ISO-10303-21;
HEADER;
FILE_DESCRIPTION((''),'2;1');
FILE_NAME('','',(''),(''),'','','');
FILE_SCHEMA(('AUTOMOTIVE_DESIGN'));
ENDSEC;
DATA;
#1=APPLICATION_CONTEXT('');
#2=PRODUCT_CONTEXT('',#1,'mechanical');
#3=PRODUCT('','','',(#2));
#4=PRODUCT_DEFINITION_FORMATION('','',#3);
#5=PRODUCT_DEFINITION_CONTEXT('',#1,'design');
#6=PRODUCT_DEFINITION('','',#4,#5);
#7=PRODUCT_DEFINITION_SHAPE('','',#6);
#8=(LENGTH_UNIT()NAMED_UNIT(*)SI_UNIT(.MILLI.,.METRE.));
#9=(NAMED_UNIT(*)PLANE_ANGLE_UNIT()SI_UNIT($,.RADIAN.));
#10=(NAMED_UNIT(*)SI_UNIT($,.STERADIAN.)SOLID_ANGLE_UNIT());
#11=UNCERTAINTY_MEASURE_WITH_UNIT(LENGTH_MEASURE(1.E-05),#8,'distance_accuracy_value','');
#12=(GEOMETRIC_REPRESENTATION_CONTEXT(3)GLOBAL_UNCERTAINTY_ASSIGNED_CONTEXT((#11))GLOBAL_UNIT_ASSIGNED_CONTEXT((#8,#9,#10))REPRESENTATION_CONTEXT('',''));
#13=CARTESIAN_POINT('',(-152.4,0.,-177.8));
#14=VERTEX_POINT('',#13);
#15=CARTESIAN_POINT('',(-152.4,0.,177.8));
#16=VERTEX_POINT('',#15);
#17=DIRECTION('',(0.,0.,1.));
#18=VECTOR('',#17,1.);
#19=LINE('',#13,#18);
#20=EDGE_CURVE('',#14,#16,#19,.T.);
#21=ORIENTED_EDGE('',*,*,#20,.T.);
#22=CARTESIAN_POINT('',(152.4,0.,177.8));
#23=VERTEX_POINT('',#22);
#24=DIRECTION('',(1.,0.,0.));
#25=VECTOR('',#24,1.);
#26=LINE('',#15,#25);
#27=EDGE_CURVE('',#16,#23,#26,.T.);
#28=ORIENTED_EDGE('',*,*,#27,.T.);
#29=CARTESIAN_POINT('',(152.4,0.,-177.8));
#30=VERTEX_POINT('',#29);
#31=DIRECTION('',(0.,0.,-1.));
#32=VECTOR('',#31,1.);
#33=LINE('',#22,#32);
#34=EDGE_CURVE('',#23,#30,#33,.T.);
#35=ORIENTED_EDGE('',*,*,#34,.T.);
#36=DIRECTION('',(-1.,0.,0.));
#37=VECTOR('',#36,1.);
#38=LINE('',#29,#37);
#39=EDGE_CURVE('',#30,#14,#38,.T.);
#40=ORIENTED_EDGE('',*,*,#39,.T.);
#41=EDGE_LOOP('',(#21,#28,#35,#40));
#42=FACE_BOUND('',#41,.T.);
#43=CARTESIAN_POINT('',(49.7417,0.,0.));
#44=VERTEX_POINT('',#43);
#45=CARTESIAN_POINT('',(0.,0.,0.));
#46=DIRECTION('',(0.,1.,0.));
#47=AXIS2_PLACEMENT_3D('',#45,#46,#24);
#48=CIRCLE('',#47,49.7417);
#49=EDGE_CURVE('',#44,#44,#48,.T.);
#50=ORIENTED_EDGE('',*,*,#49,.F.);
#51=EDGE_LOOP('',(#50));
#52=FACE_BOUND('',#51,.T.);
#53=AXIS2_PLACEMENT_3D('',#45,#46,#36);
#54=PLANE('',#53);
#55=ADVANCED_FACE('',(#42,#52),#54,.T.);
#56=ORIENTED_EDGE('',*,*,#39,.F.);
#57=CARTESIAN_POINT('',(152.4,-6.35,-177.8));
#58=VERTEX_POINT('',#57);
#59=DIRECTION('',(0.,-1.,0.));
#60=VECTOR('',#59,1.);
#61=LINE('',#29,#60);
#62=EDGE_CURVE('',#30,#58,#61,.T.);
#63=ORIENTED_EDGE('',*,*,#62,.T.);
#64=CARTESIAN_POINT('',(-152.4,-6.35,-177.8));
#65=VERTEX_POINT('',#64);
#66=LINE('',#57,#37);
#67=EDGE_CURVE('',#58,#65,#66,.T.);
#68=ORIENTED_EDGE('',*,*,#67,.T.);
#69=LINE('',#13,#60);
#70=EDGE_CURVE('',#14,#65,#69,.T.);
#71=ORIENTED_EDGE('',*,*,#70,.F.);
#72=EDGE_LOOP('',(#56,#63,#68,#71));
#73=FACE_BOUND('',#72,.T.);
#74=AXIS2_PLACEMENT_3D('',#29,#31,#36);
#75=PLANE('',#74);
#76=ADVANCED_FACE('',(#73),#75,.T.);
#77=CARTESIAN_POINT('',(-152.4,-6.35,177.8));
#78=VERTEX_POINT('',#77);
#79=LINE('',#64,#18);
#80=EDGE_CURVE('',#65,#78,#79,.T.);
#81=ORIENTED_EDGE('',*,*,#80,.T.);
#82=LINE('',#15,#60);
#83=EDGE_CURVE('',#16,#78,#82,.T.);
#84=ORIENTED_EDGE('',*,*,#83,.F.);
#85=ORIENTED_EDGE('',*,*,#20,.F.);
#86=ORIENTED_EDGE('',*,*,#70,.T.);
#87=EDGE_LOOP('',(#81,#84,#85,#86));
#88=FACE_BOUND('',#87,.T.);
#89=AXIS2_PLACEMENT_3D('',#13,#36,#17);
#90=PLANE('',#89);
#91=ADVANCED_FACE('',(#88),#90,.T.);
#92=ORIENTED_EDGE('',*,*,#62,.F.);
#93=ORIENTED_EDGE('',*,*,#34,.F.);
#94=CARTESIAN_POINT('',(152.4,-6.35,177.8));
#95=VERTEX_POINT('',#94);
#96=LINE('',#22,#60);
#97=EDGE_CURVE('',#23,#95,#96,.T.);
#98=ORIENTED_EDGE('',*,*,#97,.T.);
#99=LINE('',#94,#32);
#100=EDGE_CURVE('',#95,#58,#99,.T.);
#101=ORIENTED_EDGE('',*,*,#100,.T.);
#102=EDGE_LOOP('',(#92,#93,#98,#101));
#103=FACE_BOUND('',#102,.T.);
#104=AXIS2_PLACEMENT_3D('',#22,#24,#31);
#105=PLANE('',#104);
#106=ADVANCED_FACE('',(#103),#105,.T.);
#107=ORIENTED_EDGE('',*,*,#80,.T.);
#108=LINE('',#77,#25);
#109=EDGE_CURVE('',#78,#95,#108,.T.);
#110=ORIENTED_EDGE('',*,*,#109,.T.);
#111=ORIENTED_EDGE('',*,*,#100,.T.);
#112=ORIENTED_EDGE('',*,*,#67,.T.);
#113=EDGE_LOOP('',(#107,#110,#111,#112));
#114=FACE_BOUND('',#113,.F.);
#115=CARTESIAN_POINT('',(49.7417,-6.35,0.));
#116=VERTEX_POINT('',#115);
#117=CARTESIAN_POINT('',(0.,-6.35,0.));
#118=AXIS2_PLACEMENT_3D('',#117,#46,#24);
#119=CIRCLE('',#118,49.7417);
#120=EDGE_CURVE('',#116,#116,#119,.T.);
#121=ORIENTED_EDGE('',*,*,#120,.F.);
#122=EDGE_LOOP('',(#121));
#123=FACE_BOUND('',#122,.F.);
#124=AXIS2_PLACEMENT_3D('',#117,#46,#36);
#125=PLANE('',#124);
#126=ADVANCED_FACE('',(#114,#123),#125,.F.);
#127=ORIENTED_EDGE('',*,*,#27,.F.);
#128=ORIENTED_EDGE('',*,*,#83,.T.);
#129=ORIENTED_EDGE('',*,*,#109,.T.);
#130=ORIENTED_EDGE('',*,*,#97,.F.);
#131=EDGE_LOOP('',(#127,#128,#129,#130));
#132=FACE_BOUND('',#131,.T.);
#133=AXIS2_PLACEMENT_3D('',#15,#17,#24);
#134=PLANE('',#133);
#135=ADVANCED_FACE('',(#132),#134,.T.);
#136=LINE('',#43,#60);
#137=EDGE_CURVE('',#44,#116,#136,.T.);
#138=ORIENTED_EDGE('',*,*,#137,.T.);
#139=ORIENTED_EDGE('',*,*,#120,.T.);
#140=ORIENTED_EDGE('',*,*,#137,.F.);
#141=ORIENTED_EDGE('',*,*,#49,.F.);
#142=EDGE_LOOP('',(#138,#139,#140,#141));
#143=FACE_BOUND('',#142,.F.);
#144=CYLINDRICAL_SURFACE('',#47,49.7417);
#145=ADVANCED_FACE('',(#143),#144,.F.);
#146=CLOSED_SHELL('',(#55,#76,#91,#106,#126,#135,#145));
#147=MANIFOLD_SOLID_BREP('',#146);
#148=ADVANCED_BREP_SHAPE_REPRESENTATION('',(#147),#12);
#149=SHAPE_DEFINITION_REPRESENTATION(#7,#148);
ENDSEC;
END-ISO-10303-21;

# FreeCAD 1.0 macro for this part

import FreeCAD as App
import Part
import Sketcher
from FreeCAD import Vector
Q = App.Units.Quantity


def add_polygon(sketch, points):
    """Adds a closed chain of lines whose ends are joined by coincident constraints."""
    first, n = sketch.GeometryCount, len(points)
    for a, b in zip(points, points[1:] + points[:1]):
        sketch.addGeometry(Part.LineSegment(App.Vector(*a, 0), App.Vector(*b, 0)), False)
    for i in range(n):
        sketch.addConstraint(Sketcher.Constraint("Coincident", first + i, 2, first + (i + 1) % n, 1))

doc = App.newDocument("Part")
params = doc.addObject("Spreadsheet::Sheet", "Params")
for row, (alias, value) in enumerate([
    ("sketch1_width", "12 in"),
    ("sketch1_height", "14 in"),
    ("pad1_length", "0.25 in"),
], start=1):
    params.set(f"A{row}", alias)
    params.set(f"B{row}", "=" + value)
    params.setAlias(f"B{row}", alias)

body = doc.addObject("PartDesign::Body", "Body")

# Sketch on XZ plane
sketch1 = body.newObject("Sketcher::SketchObject", "Sketch")
sketch1.AttachmentSupport = (doc.getObject("XZ_Plane"), [""])
sketch1.MapMode = "FlatFace"
add_polygon(sketch1, [(-152.4, 177.8), (152.4, 177.8), (152.4, -177.8), (-152.4, -177.8)])  # lines 0-3
sketch1.addConstraint([
    Sketcher.Constraint("Horizontal", 0),
    Sketcher.Constraint("Vertical", 1),
    Sketcher.Constraint("Horizontal", 2),
    Sketcher.Constraint("Vertical", 3),
    Sketcher.Constraint("Symmetric", 0, 2, 2, 2, -1, 1),
    Sketcher.Constraint("DistanceX", 0, 1, 0, 2, Q("12 in")),
    Sketcher.Constraint("DistanceY", 1, 2, 1, 1, Q("14 in")),
])
sketch1.setExpression("Constraints[9]", "Params.sketch1_width")
sketch1.setExpression("Constraints[10]", "Params.sketch1_height")
pad1 = body.newObject("PartDesign::Pad", "Pad")
pad1.Profile = sketch1
pad1.setExpression("Length", "Params.pad1_length")

# Sketch on XZ plane
sketch2 = body.newObject("Sketcher::SketchObject", "Sketch001")
sketch2.AttachmentSupport = (doc.getObject("XZ_Plane"), [""])
sketch2.MapMode = "FlatFace"
sketch2.addGeometry(Part.Circle(Vector(0, 0, 0), Vector(0, 0, 1), 49.7417), False)
sketch2.addConstraint([
    Sketcher.Constraint("Coincident", 0, 3, -1, 1),
    Sketcher.Constraint("Diameter", 0, Q("99.4834 mm")),
])
pocket1 = body.newObject("PartDesign::Pocket", "Pocket")
pocket1.Profile = sketch2
pocket1.Type = "ThroughAll"
pocket1.Reversed = True

doc.recompute()
